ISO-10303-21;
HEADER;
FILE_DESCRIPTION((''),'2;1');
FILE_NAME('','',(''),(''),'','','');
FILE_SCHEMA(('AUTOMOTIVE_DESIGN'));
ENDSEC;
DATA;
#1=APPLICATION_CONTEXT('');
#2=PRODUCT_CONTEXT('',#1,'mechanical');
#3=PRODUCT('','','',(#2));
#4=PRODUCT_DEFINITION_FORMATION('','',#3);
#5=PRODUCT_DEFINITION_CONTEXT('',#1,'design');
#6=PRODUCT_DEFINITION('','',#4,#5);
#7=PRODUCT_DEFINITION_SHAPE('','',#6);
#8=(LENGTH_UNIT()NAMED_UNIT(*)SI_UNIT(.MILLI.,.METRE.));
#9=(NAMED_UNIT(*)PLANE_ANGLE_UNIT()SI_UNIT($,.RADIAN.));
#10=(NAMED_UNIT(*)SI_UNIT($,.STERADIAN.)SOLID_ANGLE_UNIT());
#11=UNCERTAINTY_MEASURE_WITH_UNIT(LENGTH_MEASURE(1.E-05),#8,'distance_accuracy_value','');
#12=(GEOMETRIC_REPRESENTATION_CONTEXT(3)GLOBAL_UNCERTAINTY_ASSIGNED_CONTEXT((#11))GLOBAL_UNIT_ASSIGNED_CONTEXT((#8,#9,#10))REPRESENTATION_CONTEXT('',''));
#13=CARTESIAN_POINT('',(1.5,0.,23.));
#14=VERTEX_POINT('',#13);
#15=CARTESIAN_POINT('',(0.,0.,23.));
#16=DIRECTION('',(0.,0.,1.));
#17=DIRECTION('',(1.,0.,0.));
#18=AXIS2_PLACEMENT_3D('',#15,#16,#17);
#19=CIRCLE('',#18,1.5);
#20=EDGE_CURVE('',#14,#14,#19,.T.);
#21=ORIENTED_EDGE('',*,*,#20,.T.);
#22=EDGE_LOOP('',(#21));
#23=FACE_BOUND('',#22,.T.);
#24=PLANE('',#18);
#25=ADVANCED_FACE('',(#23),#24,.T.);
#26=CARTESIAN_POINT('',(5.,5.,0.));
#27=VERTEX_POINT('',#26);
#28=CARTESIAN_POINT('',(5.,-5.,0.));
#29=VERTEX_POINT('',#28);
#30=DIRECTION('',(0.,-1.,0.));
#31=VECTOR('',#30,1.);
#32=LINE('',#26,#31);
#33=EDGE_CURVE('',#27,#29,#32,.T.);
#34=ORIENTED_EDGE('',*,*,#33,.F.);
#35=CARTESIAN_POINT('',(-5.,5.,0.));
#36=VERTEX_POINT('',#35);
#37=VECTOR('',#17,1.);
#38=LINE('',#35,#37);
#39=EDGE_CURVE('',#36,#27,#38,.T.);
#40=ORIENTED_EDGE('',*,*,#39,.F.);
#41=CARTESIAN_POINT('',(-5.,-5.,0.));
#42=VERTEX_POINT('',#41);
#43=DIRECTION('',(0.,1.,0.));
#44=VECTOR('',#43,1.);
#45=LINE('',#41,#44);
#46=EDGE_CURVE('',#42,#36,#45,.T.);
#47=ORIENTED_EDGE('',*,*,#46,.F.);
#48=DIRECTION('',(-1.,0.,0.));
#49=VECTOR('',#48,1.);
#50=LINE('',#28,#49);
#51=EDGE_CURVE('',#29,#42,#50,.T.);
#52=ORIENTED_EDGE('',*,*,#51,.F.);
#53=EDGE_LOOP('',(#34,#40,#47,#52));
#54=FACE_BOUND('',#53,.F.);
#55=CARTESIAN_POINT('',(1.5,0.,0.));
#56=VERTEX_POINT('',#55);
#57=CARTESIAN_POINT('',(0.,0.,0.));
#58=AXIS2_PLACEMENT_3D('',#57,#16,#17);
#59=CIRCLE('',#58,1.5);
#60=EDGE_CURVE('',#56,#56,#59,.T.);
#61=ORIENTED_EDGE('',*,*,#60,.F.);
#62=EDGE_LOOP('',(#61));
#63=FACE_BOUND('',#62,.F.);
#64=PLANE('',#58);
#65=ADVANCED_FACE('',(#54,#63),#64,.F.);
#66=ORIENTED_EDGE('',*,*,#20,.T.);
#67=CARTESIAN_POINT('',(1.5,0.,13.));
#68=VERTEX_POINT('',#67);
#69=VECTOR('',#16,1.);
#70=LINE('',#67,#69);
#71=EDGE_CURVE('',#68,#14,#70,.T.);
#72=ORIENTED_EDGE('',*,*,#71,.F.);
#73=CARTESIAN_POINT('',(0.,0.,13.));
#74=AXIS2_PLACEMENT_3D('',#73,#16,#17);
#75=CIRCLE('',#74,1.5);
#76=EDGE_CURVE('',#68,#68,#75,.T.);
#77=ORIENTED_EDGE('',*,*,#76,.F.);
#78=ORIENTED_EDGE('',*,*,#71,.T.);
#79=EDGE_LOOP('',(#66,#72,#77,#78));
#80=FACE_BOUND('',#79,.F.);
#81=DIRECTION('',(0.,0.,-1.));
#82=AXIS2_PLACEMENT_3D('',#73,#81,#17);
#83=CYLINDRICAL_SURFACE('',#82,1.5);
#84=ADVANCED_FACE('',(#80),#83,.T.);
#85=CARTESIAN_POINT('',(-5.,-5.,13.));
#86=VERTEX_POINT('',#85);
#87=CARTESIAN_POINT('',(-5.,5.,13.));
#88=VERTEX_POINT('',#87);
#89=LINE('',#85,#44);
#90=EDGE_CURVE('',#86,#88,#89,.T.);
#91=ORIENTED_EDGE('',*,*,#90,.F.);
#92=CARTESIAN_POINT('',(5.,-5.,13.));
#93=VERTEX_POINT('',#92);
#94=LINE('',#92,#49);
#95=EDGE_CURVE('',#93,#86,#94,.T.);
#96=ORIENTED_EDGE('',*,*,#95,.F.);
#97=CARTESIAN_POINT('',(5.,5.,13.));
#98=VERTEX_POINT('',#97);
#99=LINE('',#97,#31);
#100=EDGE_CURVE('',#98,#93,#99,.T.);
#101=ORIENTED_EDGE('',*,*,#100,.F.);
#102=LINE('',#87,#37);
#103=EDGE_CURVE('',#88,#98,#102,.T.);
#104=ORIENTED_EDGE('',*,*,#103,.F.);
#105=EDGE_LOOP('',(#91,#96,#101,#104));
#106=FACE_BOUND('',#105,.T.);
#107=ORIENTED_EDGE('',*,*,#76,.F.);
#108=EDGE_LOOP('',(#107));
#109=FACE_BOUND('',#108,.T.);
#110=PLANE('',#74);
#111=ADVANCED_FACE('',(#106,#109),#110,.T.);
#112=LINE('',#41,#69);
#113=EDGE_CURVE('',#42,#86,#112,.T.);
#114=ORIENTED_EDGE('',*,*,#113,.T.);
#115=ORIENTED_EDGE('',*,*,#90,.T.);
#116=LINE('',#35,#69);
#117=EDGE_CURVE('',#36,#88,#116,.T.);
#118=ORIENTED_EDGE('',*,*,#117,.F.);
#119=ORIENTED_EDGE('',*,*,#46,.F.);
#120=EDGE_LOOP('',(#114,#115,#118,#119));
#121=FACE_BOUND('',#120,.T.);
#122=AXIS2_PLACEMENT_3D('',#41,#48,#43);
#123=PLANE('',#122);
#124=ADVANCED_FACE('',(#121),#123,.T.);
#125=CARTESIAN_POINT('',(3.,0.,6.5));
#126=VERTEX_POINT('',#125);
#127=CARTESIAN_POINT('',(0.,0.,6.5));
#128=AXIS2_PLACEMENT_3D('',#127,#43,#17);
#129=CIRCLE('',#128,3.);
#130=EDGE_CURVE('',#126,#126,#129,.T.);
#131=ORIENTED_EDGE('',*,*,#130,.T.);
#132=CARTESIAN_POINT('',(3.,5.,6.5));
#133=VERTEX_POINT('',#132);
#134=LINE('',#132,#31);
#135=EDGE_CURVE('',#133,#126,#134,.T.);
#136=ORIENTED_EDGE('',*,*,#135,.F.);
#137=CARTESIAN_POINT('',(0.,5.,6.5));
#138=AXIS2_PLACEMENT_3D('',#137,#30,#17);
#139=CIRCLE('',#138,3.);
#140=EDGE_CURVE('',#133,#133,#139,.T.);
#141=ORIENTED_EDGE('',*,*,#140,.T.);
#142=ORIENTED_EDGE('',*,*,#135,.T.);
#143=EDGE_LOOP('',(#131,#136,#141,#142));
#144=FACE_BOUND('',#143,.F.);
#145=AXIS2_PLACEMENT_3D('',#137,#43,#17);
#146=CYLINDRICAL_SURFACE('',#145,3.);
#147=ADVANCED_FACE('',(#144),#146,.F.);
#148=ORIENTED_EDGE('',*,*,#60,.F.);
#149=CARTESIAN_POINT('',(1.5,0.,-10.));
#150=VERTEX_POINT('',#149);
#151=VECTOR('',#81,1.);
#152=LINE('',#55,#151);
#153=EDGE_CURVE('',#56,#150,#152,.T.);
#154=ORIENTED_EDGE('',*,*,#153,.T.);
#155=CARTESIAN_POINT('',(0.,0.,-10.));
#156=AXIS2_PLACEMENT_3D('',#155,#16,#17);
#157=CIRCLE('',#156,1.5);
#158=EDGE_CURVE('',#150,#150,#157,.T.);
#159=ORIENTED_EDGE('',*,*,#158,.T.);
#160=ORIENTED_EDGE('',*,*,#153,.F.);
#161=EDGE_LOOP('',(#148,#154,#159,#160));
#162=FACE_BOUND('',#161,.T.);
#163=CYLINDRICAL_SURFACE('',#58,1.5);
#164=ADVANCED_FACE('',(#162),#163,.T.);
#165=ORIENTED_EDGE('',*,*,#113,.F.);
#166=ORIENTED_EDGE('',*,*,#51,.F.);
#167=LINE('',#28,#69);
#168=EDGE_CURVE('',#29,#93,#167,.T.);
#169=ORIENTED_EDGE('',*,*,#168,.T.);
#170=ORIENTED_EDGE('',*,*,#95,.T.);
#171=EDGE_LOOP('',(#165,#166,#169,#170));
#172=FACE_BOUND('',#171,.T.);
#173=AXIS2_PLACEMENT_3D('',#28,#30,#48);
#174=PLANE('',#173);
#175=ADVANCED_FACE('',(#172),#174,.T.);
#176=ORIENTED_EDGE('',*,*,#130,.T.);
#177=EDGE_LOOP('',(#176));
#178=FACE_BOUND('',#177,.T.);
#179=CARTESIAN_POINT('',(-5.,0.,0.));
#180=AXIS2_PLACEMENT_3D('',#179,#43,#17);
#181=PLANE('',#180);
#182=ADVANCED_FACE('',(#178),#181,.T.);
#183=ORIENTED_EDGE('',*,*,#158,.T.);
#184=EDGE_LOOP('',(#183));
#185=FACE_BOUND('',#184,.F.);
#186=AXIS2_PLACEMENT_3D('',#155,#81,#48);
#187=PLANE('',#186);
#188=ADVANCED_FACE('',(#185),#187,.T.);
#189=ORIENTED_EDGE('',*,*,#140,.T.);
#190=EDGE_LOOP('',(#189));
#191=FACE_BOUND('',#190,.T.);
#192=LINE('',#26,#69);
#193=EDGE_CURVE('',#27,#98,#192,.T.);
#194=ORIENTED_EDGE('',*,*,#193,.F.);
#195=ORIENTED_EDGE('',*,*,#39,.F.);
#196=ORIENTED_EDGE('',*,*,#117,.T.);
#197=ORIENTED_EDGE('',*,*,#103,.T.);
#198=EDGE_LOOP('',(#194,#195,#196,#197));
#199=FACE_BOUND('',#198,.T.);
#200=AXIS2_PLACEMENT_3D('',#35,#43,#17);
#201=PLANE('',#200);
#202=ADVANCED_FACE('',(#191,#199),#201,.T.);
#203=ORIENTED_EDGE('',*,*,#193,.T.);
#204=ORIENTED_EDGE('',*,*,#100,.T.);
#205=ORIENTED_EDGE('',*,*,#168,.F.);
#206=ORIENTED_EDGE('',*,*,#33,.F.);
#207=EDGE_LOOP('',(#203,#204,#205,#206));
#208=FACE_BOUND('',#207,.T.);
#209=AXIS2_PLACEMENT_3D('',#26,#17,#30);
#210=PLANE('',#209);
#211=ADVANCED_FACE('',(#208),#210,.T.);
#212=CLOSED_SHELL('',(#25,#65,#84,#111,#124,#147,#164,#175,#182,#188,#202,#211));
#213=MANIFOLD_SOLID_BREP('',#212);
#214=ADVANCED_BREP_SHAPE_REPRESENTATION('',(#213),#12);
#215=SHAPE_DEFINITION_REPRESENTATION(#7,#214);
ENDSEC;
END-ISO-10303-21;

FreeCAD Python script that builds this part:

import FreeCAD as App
import Part
import Sketcher

doc = App.newDocument("Part")
params = doc.addObject("Spreadsheet::Sheet", "Params")
for row, (alias, value) in enumerate([
    ("sketch1_width", "10 mm"),
    ("pad1_length", "13 mm"),
    ("sketch2_diameter", "3 mm"),
    ("pad2_length", "10 mm"),
    ("sketch3_diameter", "6 mm"),
    ("pocket1_length", "5 mm"),
], start=1):
    params.set(f"A{row}", alias)
    params.set(f"B{row}", "=" + value)
    params.setAlias(f"B{row}", alias)

body = doc.addObject("PartDesign::Body", "Body")

# Sketch on XY plane
sketch1 = body.newObject("Sketcher::SketchObject", "Sketch")
sketch1.AttachmentSupport = (doc.getObject("XY_Plane"), [""])
sketch1.MapMode = "FlatFace"
sketch1.addGeometry(Part.LineSegment(App.Vector(5, 5, 0), App.Vector(-5, 5, 0)), False)
sketch1.addGeometry(Part.LineSegment(App.Vector(-5, 5, 0), App.Vector(-5, -5, 0)), False)
sketch1.addGeometry(Part.LineSegment(App.Vector(-5, -5, 0), App.Vector(5, -5, 0)), False)
sketch1.addGeometry(Part.LineSegment(App.Vector(5, -5, 0), App.Vector(5, 5, 0)), False)
sketch1.addConstraint(Sketcher.Constraint("Coincident", 0, 2, 1, 1))
sketch1.addConstraint(Sketcher.Constraint("Coincident", 1, 2, 2, 1))
sketch1.addConstraint(Sketcher.Constraint("Coincident", 2, 2, 3, 1))
sketch1.addConstraint(Sketcher.Constraint("Coincident", 3, 2, 0, 1))
sketch1.addConstraint(Sketcher.Constraint("Horizontal", 0))
sketch1.addConstraint(Sketcher.Constraint("Vertical", 1))
sketch1.addConstraint(Sketcher.Constraint("Horizontal", 2))
sketch1.addConstraint(Sketcher.Constraint("Vertical", 3))
sketch1.addConstraint(Sketcher.Constraint("Symmetric", 0, 2, 2, 2, -1, 1))
sketch1.addConstraint(Sketcher.Constraint("Equal", 2, 1))
sketch1.addConstraint(Sketcher.Constraint("DistanceX", 0, 2, 0, 1, 10.0))
sketch1.setExpression("Constraints[10]", "Params.sketch1_width")
pad1 = body.newObject("PartDesign::Pad", "Pad")
pad1.Profile = sketch1
pad1.setExpression("Length", "Params.pad1_length")

# Sketch on XY plane
sketch2 = body.newObject("Sketcher::SketchObject", "Sketch001")
sketch2.AttachmentSupport = (doc.getObject("XY_Plane"), [""])
sketch2.MapMode = "FlatFace"
sketch2.AttachmentOffset = App.Placement(App.Vector(0, 0, 13), App.Rotation())
sketch2.addGeometry(Part.Circle(App.Vector(0, 0, 0), App.Vector(0, 0, 1), 1.5), False)
sketch2.addConstraint(Sketcher.Constraint("Coincident", 0, 3, -1, 1))
sketch2.addConstraint(Sketcher.Constraint("Diameter", 0, 3.0))
sketch2.setExpression("Constraints[1]", "Params.sketch2_diameter")
pad2 = body.newObject("PartDesign::Pad", "Pad001")
pad2.Profile = sketch2
pad2.setExpression("Length", "Params.pad2_length")
doc.recompute()

datumplane = body.newObject("PartDesign::Plane", "DatumPlane")
datumplane.AttachmentSupport = (doc.getObject("XY_Plane"), [""])
datumplane.MapMode = "FlatFace"
datumplane.AttachmentOffset = App.Placement(App.Vector(0, 0, 6.5), App.Rotation())
mirrored = body.newObject("PartDesign::Mirrored", "Mirrored")
mirrored.Originals = [pad2]
mirrored.MirrorPlane = (datumplane, [""])
body.Tip = mirrored

# Sketch on XZ plane
sketch3 = body.newObject("Sketcher::SketchObject", "Sketch002")
sketch3.AttachmentSupport = (doc.getObject("XZ_Plane"), [""])
sketch3.MapMode = "FlatFace"
sketch3.AttachmentOffset = App.Placement(App.Vector(0, 0, -5), App.Rotation())
sketch3.addGeometry(Part.Circle(App.Vector(0, 6.5, 0), App.Vector(0, 0, 1), 3), False)
sketch3.addConstraint(Sketcher.Constraint("PointOnObject", 0, 3, -2))
sketch3.addConstraint(Sketcher.Constraint("Diameter", 0, 6.0))
sketch3.addConstraint(Sketcher.Constraint("DistanceY", -1, 1, 0, 3, 6.5))
sketch3.setExpression("Constraints[1]", "Params.sketch3_diameter")
pocket1 = body.newObject("PartDesign::Pocket", "Pocket")
pocket1.Profile = sketch3
pocket1.setExpression("Length", "Params.pocket1_length")
pocket1.Reversed = True

doc.recompute()
